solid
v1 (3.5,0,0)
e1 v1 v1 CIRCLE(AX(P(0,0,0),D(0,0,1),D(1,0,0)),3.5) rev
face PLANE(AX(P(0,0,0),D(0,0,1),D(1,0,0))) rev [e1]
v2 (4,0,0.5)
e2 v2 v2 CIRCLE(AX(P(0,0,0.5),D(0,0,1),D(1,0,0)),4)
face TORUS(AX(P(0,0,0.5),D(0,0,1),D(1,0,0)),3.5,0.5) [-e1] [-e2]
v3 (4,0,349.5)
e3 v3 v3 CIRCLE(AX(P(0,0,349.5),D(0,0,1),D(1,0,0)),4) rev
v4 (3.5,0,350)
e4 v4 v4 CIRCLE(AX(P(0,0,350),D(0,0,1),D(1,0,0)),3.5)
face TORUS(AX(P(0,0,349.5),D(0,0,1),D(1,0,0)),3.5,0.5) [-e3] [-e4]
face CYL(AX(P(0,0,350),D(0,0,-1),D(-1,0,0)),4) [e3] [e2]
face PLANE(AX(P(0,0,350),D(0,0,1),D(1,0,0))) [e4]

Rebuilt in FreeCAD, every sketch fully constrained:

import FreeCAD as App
import Part
import Sketcher
from FreeCAD import Vector
Q = App.Units.Quantity


def edges_at(feature, points):
    """Names of the edges that pass closest to the given points."""
    edges = feature.Shape.Edges
    near = lambda p: min(range(len(edges)), key=lambda i: edges[i].distToShape(Part.Vertex(*p))[0])
    return sorted({f"Edge{near(p) + 1}" for p in points})

doc = App.newDocument("Part")
body = doc.addObject("PartDesign::Body", "Body")

sketch1 = body.newObject("Sketcher::SketchObject", "Sketch")
sketch1.AttachmentSupport = (doc.getObject("XY_Plane"), [""])
sketch1.MapMode = "FlatFace"
sketch1.addGeometry(Part.Circle(Vector(0, 0, 0), Vector(0, 0, 1), 4), False)
sketch1.addConstraint(Sketcher.Constraint("Coincident", 0, 3, -1, 1))
sketch1.addConstraint(Sketcher.Constraint("Diameter", 0, Q("8 mm")))
pad1 = body.newObject("PartDesign::Pad", "Pad")
pad1.Profile = sketch1
pad1.Length = 350
doc.recompute()

fillet = body.newObject("PartDesign::Fillet", "Fillet")
fillet.Base = (pad1, edges_at(pad1, [(-4, 0, 0), (-4, 0, 350)]))
fillet.Radius = 0.5

doc.recompute()
